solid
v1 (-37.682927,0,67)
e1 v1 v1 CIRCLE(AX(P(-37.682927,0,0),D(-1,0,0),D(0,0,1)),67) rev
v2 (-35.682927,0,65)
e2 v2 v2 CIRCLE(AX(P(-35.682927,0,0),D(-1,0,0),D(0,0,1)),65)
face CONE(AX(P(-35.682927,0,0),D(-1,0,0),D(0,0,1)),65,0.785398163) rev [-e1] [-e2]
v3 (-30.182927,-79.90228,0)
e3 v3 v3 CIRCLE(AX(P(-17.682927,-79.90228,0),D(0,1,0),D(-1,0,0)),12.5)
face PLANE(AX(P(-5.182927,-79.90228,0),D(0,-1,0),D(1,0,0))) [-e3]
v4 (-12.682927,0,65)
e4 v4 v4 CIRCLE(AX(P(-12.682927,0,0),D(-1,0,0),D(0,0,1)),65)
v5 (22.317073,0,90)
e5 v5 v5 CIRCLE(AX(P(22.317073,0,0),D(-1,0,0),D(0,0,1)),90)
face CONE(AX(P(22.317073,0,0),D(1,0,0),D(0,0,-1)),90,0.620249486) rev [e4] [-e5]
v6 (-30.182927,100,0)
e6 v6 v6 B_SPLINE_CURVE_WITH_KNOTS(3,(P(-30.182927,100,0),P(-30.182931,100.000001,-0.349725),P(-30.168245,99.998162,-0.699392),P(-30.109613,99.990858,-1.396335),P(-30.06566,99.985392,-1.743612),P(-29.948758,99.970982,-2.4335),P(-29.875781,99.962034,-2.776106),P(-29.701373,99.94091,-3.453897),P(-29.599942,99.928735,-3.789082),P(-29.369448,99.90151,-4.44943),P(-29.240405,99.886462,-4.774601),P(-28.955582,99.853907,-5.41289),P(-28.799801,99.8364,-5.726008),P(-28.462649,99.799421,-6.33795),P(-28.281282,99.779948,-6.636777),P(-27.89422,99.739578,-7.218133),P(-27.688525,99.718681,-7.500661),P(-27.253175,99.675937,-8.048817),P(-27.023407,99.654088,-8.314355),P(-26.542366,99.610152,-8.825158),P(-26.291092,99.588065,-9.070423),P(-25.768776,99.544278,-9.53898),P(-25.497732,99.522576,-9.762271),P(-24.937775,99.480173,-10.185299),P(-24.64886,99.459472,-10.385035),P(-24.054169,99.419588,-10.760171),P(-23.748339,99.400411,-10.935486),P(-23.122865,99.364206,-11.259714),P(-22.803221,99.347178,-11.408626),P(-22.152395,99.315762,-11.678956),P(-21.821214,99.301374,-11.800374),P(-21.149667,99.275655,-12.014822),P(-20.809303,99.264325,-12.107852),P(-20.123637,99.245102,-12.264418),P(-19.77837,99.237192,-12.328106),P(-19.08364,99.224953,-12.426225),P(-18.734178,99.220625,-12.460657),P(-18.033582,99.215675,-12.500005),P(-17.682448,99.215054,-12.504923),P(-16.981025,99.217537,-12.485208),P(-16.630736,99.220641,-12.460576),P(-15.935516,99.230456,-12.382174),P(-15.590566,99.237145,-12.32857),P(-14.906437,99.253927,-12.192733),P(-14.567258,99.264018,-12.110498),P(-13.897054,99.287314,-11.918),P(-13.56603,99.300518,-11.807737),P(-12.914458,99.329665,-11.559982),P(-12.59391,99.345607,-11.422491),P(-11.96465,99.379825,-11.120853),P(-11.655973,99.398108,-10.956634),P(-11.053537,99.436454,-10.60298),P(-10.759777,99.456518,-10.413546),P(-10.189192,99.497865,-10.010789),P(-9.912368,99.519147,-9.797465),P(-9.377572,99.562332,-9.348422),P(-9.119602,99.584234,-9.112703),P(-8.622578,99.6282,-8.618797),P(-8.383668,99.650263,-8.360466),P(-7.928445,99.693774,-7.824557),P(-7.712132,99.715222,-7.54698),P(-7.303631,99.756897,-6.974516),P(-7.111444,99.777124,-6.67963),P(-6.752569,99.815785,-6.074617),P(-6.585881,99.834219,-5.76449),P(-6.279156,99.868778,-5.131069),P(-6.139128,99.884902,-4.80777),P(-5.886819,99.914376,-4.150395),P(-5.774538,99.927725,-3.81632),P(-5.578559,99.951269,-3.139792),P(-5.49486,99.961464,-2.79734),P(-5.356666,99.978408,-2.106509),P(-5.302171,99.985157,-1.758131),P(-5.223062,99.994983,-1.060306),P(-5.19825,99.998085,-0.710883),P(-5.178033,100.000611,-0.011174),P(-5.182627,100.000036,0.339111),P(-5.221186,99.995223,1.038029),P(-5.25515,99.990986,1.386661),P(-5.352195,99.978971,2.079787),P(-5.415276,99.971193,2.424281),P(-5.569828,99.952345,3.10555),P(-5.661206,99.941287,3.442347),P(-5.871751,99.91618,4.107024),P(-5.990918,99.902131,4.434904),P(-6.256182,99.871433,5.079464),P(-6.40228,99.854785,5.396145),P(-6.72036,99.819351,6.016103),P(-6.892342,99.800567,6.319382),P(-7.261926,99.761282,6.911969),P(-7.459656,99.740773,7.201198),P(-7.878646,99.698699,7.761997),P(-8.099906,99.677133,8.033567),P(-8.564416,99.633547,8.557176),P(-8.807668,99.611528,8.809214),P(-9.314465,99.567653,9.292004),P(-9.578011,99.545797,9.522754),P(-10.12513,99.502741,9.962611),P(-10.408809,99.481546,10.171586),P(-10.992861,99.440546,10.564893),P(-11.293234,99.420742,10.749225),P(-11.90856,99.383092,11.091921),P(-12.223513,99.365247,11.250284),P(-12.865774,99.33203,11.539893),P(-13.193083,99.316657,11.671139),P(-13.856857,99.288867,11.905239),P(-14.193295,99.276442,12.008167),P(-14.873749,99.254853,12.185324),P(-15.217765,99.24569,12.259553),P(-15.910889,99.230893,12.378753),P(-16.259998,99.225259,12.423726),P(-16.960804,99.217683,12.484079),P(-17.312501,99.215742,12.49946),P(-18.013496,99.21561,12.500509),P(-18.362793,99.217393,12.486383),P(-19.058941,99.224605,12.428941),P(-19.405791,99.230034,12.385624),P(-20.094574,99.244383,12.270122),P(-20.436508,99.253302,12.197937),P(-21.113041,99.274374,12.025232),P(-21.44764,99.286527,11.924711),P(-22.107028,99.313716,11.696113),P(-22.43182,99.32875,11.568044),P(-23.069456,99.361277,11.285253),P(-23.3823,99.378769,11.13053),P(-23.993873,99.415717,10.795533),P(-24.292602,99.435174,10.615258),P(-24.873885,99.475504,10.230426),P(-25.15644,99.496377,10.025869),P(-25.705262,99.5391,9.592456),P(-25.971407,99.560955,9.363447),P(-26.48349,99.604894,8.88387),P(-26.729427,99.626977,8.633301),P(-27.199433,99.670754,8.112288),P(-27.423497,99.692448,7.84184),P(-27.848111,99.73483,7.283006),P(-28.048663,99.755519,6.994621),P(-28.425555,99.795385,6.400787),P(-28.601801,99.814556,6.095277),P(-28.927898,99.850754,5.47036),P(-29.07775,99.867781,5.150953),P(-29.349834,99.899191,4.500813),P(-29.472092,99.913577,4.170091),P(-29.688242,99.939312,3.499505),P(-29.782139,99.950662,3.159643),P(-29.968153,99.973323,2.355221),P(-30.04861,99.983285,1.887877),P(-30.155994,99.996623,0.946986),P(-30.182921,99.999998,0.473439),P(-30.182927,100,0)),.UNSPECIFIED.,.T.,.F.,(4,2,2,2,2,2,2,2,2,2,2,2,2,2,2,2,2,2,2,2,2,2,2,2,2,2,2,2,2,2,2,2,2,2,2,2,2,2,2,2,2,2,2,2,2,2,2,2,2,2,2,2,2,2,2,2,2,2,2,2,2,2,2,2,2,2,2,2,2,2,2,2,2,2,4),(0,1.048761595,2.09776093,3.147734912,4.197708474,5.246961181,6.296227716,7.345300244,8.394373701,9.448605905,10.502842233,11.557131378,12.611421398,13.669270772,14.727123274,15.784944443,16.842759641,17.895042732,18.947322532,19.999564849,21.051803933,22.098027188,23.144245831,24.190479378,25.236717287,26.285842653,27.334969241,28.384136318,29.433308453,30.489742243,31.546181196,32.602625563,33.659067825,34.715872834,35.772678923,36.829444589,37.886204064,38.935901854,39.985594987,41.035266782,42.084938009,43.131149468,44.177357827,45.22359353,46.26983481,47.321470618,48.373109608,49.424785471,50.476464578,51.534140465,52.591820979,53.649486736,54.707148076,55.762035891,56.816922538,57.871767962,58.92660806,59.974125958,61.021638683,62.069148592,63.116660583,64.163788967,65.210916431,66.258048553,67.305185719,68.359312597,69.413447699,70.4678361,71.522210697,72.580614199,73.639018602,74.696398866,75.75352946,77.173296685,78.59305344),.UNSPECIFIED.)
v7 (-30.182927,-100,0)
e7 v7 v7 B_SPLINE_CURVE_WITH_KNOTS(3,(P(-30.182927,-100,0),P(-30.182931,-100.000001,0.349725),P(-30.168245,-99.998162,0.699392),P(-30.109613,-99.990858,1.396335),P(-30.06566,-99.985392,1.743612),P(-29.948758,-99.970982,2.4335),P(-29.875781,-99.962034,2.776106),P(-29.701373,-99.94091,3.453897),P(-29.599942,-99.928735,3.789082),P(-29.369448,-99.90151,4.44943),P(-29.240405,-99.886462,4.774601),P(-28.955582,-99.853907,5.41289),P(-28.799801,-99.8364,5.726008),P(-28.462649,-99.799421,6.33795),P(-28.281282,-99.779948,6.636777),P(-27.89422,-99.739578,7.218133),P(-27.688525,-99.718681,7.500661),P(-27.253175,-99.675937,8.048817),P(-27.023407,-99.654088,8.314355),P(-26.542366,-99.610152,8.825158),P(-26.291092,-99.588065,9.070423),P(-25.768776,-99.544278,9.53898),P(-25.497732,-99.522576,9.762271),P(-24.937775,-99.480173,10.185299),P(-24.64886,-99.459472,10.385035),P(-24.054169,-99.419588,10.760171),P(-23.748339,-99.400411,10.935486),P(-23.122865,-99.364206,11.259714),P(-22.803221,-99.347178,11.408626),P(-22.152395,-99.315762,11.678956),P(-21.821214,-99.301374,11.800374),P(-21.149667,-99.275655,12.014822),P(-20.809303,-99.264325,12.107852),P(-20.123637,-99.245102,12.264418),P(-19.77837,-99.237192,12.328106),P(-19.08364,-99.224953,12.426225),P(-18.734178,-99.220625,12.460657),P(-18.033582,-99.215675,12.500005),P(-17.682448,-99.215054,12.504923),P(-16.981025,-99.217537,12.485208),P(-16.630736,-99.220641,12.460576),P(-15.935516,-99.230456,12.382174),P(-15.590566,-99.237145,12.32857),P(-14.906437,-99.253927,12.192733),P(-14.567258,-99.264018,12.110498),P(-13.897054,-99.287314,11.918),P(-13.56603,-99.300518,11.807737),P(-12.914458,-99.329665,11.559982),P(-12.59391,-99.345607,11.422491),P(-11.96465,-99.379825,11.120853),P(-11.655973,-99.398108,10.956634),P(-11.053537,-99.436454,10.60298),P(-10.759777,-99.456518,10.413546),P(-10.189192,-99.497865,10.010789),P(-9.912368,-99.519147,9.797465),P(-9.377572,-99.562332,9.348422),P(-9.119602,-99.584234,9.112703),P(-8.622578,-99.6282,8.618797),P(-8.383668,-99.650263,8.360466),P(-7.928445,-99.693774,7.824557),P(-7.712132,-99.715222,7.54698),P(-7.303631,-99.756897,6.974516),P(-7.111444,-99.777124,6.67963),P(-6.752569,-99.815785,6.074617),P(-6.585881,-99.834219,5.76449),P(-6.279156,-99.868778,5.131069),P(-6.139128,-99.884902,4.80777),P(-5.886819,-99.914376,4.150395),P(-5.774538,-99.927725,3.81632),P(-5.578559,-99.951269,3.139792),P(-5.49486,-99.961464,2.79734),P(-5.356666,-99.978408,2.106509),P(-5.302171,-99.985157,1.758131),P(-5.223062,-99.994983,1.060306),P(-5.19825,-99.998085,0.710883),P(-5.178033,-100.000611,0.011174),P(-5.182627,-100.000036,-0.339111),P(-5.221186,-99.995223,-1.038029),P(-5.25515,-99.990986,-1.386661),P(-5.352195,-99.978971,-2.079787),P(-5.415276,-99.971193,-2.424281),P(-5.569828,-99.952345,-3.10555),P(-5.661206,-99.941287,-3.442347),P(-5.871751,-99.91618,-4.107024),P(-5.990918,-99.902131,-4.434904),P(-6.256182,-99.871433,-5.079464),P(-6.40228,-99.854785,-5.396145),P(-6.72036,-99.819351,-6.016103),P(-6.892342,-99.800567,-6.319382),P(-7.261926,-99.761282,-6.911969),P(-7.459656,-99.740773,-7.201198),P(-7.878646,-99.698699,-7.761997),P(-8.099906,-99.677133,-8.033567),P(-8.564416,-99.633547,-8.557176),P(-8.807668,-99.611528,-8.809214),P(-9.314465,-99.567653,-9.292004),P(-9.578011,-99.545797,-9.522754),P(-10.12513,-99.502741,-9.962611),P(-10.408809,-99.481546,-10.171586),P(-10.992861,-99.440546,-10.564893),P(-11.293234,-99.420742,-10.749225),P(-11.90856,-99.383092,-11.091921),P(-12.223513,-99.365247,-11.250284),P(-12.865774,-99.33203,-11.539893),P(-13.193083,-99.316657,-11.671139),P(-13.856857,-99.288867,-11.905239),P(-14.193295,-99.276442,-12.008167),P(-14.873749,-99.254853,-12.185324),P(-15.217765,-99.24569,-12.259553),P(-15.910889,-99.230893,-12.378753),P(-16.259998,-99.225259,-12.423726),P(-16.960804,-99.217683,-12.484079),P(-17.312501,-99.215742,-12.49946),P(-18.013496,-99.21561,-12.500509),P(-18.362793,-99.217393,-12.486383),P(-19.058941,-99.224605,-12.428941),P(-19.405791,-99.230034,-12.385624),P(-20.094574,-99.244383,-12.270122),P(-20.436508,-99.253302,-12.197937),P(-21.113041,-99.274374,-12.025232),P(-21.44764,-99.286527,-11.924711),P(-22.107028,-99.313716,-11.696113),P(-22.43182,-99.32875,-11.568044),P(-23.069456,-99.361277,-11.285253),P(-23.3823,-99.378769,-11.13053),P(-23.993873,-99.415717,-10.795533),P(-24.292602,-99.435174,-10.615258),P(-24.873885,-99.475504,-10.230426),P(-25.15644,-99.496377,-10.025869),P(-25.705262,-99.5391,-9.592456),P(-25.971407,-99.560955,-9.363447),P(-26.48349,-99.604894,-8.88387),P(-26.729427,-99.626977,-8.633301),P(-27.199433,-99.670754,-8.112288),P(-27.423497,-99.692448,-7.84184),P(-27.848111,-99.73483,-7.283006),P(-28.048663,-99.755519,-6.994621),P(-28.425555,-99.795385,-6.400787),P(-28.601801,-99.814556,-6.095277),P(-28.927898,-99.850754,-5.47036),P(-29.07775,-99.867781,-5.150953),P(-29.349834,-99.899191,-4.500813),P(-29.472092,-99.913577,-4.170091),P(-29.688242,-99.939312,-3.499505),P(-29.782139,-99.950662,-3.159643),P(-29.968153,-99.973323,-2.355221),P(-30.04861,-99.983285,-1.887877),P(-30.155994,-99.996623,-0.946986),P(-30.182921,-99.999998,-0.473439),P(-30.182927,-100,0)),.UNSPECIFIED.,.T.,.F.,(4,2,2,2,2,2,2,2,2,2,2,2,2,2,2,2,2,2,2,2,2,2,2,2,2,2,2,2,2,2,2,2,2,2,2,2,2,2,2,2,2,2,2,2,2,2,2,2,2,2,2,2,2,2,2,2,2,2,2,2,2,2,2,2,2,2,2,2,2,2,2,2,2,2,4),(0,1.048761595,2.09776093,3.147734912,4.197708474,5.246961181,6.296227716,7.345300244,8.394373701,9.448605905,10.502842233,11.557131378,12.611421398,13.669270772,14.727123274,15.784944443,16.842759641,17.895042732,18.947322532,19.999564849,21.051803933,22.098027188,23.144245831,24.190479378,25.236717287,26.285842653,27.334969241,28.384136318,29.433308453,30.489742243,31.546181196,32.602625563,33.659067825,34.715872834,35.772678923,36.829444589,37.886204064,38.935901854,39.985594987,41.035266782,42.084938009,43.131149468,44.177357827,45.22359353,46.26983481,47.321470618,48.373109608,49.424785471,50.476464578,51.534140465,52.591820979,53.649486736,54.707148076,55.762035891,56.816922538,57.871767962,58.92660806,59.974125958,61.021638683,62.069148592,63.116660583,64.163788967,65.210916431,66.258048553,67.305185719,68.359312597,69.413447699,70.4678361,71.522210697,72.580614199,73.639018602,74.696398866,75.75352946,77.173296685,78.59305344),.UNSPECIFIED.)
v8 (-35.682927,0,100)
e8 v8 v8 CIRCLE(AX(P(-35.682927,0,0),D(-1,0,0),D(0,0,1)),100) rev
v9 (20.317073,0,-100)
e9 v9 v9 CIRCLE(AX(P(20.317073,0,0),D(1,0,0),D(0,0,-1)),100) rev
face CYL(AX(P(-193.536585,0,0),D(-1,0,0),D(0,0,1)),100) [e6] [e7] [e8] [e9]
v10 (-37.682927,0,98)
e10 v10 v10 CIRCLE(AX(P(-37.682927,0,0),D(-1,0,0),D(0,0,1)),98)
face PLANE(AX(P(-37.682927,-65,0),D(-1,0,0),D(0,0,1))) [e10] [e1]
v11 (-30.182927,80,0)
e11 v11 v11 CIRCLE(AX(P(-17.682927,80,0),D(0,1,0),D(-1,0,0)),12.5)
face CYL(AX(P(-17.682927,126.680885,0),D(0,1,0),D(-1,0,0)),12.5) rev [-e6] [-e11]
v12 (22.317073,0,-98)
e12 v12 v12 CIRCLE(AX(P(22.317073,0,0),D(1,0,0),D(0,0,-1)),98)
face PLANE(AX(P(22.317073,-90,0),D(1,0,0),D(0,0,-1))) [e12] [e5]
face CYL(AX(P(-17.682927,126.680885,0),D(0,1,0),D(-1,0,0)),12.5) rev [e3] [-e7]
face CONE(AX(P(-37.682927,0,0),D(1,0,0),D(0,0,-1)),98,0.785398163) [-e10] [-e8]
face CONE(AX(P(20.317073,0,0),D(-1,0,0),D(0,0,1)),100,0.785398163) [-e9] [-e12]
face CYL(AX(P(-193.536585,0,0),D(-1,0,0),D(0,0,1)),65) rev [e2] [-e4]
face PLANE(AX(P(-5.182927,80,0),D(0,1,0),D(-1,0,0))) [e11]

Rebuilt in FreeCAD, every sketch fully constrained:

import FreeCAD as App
import Part
import Sketcher
from FreeCAD import Vector
Q = App.Units.Quantity


def edges_at(feature, points):
    """Names of the edges that pass closest to the given points."""
    edges = feature.Shape.Edges
    near = lambda p: min(range(len(edges)), key=lambda i: edges[i].distToShape(Part.Vertex(*p))[0])
    return sorted({f"Edge{near(p) + 1}" for p in points})


def add_polygon(sketch, points):
    """Adds a closed chain of lines whose ends are joined by coincident constraints."""
    first, n = sketch.GeometryCount, len(points)
    for a, b in zip(points, points[1:] + points[:1]):
        sketch.addGeometry(Part.LineSegment(App.Vector(*a, 0), App.Vector(*b, 0)), False)
    for i in range(n):
        sketch.addConstraint(Sketcher.Constraint("Coincident", first + i, 2, first + (i + 1) % n, 1))

doc = App.newDocument("Part")
body = doc.addObject("PartDesign::Body", "Body")

# Sketch on XY plane
sketch1 = body.newObject("Sketcher::SketchObject", "Sketch")
sketch1.AttachmentSupport = (doc.getObject("XY_Plane"), [""])
sketch1.MapMode = "FlatFace"
add_polygon(sketch1, [(-37.682927, -65), (-37.682927, -100), (22.317073, -100), (22.317073, -90), (-12.682927, -65)])  # lines 0-4
sketch1.addConstraint([
    Sketcher.Constraint("Vertical", 0),
    Sketcher.Constraint("Horizontal", 1),
    Sketcher.Constraint("Vertical", 2),
    Sketcher.Constraint("Horizontal", 4),
    Sketcher.Constraint("DistanceX", 1, 1, 1, 2, Q("60 mm")),
    Sketcher.Constraint("DistanceX", 4, 2, 4, 1, Q("25 mm")),
    Sketcher.Constraint("DistanceY", 0, 2, 0, 1, Q("35 mm")),
    Sketcher.Constraint("DistanceY", 2, 1, 2, 2, Q("10 mm")),
    Sketcher.Constraint("DistanceY", 0, 2, -1, 1, Q("100 mm")),
    Sketcher.Constraint("DistanceX", 0, 2, -1, 1, Q("37.682927 mm")),
])
revolution = body.newObject("PartDesign::Revolution", "Revolution")
revolution.Profile = sketch1
revolution.ReferenceAxis = (sketch1, ["H_Axis"])
revolution.Angle = 360
doc.recompute()

chamfer = body.newObject("PartDesign::Chamfer", "Chamfer")
chamfer.Base = (revolution, edges_at(revolution, [(22.317, 0, -100), (-37.683, 0, -100), (-37.683, 0, -65)]))
chamfer.Size = 2

# Sketch on XY plane
sketch2 = body.newObject("Sketcher::SketchObject", "Sketch001")
sketch2.AttachmentSupport = (doc.getObject("XY_Plane"), [""])
sketch2.MapMode = "FlatFace"
add_polygon(sketch2, [(-5.182927, -79.90228), (-17.682927, -79.90228), (-17.682927, -106.132105), (-5.182927, -106.132105)])  # lines 0-3
add_polygon(sketch2, [(-17.682927, 100), (-17.682927, 80), (-5.182927, 80), (-5.182927, 100)])  # lines 4-7
sketch2.addGeometry(Part.LineSegment(Vector(-17.682927, 100, 0), Vector(-17.682927, -106.132105, 0)), True)  # axis
sketch2.addConstraint([
    Sketcher.Constraint("Horizontal", 0),
    Sketcher.Constraint("Vertical", 1),
    Sketcher.Constraint("Horizontal", 2),
    Sketcher.Constraint("Vertical", 3),
    Sketcher.Constraint("Vertical", 4),
    Sketcher.Constraint("Horizontal", 5),
    Sketcher.Constraint("Vertical", 6),
    Sketcher.Constraint("Horizontal", 7),
    Sketcher.Constraint("Vertical", 8),
    Sketcher.Constraint("Coincident", 8, 1, 7, 2),
    Sketcher.Constraint("Coincident", 8, 2, 1, 2),
    Sketcher.Constraint("Vertical", 3, 2, 5, 2),
    Sketcher.Constraint("DistanceY", 4, 2, 4, 1, Q("20 mm")),
    Sketcher.Constraint("DistanceX", 0, 2, 0, 1, Q("12.5 mm")),
    Sketcher.Constraint("DistanceY", -1, 1, 4, 2, Q("80 mm")),
    Sketcher.Constraint("DistanceY", 1, 2, 1, 1, Q("26.229825 mm")),
    Sketcher.Constraint("DistanceY", 8, 2, 8, 1, Q("206.132105 mm")),
    Sketcher.Constraint("DistanceX", 0, 2, -1, 1, Q("17.682927 mm")),
])
groove = body.newObject("PartDesign::Groove", "Groove")
groove.Profile = sketch2
groove.ReferenceAxis = (sketch2, ["Axis0"])
groove.Angle = 360

doc.recompute()
